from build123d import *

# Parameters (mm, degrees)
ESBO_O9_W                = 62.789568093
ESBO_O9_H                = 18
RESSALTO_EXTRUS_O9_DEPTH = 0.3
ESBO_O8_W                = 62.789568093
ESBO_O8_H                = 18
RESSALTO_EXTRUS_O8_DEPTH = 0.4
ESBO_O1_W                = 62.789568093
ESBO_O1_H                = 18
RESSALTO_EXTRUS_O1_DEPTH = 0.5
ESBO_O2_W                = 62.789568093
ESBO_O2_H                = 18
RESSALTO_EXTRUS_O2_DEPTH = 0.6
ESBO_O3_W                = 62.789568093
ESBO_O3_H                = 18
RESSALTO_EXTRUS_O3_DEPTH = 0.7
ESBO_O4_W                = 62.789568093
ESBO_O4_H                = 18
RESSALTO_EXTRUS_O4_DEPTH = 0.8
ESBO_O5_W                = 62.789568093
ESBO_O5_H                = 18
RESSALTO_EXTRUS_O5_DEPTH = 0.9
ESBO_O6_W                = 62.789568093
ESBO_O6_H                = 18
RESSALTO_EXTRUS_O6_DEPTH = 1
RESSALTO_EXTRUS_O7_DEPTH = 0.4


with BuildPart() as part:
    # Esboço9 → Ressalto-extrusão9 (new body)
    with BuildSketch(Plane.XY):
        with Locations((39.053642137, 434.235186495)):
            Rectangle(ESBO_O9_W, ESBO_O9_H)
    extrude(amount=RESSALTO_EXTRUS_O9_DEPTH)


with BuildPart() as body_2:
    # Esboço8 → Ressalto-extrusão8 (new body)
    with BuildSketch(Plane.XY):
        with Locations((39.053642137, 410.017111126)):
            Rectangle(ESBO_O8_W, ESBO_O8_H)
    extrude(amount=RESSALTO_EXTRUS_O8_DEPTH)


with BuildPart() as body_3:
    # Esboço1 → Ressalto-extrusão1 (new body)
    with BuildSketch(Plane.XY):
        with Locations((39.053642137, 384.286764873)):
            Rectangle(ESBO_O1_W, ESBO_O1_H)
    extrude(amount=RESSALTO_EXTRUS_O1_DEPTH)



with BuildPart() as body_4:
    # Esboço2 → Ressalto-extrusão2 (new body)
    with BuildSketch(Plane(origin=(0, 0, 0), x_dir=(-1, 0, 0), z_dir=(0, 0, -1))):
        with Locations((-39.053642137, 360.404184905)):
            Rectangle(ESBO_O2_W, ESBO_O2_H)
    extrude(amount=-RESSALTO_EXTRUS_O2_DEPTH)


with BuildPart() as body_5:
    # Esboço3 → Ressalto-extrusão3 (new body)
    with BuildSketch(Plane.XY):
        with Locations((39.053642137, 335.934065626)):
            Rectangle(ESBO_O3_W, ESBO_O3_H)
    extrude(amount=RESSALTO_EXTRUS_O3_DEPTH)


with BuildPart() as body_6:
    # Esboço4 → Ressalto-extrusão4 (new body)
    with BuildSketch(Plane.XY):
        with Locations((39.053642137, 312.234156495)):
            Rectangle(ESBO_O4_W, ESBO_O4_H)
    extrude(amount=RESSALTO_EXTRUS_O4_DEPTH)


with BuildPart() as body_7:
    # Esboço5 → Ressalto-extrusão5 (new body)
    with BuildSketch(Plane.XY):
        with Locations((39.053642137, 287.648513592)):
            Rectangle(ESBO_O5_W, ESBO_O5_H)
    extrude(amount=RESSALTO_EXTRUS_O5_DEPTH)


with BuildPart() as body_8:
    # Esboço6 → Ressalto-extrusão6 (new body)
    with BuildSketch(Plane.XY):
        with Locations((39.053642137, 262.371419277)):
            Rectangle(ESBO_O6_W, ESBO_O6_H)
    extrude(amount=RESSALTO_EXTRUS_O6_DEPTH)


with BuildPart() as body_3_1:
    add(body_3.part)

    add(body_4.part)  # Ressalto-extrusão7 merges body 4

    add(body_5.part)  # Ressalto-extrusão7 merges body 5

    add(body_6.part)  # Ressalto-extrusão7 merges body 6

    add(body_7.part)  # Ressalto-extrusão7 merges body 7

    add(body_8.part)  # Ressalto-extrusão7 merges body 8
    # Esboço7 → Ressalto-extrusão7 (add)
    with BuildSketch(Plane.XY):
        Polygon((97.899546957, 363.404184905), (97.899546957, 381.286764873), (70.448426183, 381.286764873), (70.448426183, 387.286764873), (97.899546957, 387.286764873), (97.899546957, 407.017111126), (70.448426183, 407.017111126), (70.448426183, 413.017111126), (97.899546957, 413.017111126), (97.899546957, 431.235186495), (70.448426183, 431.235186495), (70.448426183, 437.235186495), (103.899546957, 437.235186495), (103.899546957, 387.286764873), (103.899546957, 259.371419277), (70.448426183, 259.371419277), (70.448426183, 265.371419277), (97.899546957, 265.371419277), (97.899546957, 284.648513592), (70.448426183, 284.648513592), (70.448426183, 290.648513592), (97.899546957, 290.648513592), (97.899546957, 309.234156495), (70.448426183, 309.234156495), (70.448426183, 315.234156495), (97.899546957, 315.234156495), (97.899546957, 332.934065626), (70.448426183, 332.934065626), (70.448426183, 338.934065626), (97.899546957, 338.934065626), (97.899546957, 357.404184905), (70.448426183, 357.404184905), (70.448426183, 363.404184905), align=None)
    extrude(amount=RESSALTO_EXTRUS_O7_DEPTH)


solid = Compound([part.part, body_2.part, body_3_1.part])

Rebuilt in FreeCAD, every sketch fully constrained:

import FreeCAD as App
import Part
import Sketcher

V = App.Vector


def add_polygon(sketch, points):
    """Adds a closed chain of lines whose ends are joined by coincident constraints."""
    first, n = sketch.GeometryCount, len(points)
    for a, b in zip(points, points[1:] + points[:1]):
        sketch.addGeometry(Part.LineSegment(App.Vector(*a, 0), App.Vector(*b, 0)), False)
    for i in range(n):
        sketch.addConstraint(Sketcher.Constraint("Coincident", first + i, 2, first + (i + 1) % n, 1))

doc = App.newDocument("Part")
body = doc.addObject("PartDesign::Body", "Body")

# Sketch on XY plane
sketch1 = body.newObject("Sketcher::SketchObject", "Sketch")
sketch1.AttachmentSupport = (doc.getObject("XY_Plane"), [""])
sketch1.MapMode = "FlatFace"
add_polygon(sketch1, [(7.658858, 443.235186), (7.658858, 425.235186), (70.448426, 425.235186), (70.448426, 443.235186)])  # lines 0-3
sketch1.addConstraint([
    Sketcher.Constraint("Vertical", 0),
    Sketcher.Constraint("Horizontal", 1),
    Sketcher.Constraint("Vertical", 2),
    Sketcher.Constraint("Horizontal", 3),
    Sketcher.Constraint("DistanceY", 0, 2, 0, 1, 18.0),
    Sketcher.Constraint("DistanceX", 1, 1, 1, 2, 62.789568),
    Sketcher.Constraint("DistanceX", -1, 1, 0, 2, 7.658858),
    Sketcher.Constraint("DistanceY", -1, 1, 0, 2, 425.235186),
])
pad1 = body.newObject("PartDesign::Pad", "Pad")
pad1.Profile = sketch1
pad1.Length = 0.3
body2 = doc.addObject("PartDesign::Body", "Body001")

# Sketch on XY plane
sketch2 = body2.newObject("Sketcher::SketchObject", "Sketch001")
sketch2.AttachmentSupport = (doc.getObject("XY_Plane001"), [""])
sketch2.MapMode = "FlatFace"
add_polygon(sketch2, [(7.658858, 419.017111), (7.658858, 401.017111), (70.448426, 401.017111), (70.448426, 419.017111)])  # lines 0-3
sketch2.addConstraint([
    Sketcher.Constraint("Vertical", 0),
    Sketcher.Constraint("Horizontal", 1),
    Sketcher.Constraint("Vertical", 2),
    Sketcher.Constraint("Horizontal", 3),
    Sketcher.Constraint("DistanceY", 0, 2, 0, 1, 18.0),
    Sketcher.Constraint("DistanceX", 1, 1, 1, 2, 62.789568),
    Sketcher.Constraint("DistanceX", -1, 1, 0, 2, 7.658858),
    Sketcher.Constraint("DistanceY", -1, 1, 0, 2, 401.017111),
])
pad2 = body2.newObject("PartDesign::Pad", "Pad001")
pad2.Profile = sketch2
pad2.Length = 0.4
body3 = doc.addObject("PartDesign::Body", "Body002")

# Sketch on XY plane
sketch3 = body3.newObject("Sketcher::SketchObject", "Sketch002")
sketch3.AttachmentSupport = (doc.getObject("XY_Plane002"), [""])
sketch3.MapMode = "FlatFace"
add_polygon(sketch3, [(7.658858, 393.286765), (7.658858, 375.286765), (70.448426, 375.286765), (70.448426, 393.286765)])  # lines 0-3
sketch3.addConstraint([
    Sketcher.Constraint("Vertical", 0),
    Sketcher.Constraint("Horizontal", 1),
    Sketcher.Constraint("Vertical", 2),
    Sketcher.Constraint("Horizontal", 3),
    Sketcher.Constraint("DistanceY", 0, 2, 0, 1, 18.0),
    Sketcher.Constraint("DistanceX", 1, 1, 1, 2, 62.789568),
    Sketcher.Constraint("DistanceX", -1, 1, 0, 2, 7.658858),
    Sketcher.Constraint("DistanceY", -1, 1, 0, 2, 375.286765),
])
pad3 = body3.newObject("PartDesign::Pad", "Pad002")
pad3.Profile = sketch3
pad3.Length = 0.5
body4 = doc.addObject("PartDesign::Body", "Body003")

# Sketch on XY plane
sketch4 = body4.newObject("Sketcher::SketchObject", "Sketch003")
sketch4.AttachmentSupport = (doc.getObject("XY_Plane003"), [""])
sketch4.MapMode = "FlatFace"
add_polygon(sketch4, [(70.448426, 369.404185), (70.448426, 351.404185), (7.658858, 351.404185), (7.658858, 369.404185)])  # lines 0-3
sketch4.addConstraint([
    Sketcher.Constraint("Vertical", 0),
    Sketcher.Constraint("Horizontal", 1),
    Sketcher.Constraint("Vertical", 2),
    Sketcher.Constraint("Horizontal", 3),
    Sketcher.Constraint("DistanceY", 0, 2, 0, 1, 18.0),
    Sketcher.Constraint("DistanceX", 1, 2, 1, 1, 62.789568),
    Sketcher.Constraint("DistanceX", -1, 1, 1, 2, 7.658858),
    Sketcher.Constraint("DistanceY", -1, 1, 0, 2, 351.404185),
])
pad4 = body4.newObject("PartDesign::Pad", "Pad003")
pad4.Profile = sketch4
pad4.Length = 0.6
body5 = doc.addObject("PartDesign::Body", "Body004")

# Sketch on XY plane
sketch5 = body5.newObject("Sketcher::SketchObject", "Sketch004")
sketch5.AttachmentSupport = (doc.getObject("XY_Plane004"), [""])
sketch5.MapMode = "FlatFace"
add_polygon(sketch5, [(7.658858, 344.934066), (7.658858, 326.934066), (70.448426, 326.934066), (70.448426, 344.934066)])  # lines 0-3
sketch5.addConstraint([
    Sketcher.Constraint("Vertical", 0),
    Sketcher.Constraint("Horizontal", 1),
    Sketcher.Constraint("Vertical", 2),
    Sketcher.Constraint("Horizontal", 3),
    Sketcher.Constraint("DistanceY", 0, 2, 0, 1, 18.0),
    Sketcher.Constraint("DistanceX", 1, 1, 1, 2, 62.789568),
    Sketcher.Constraint("DistanceX", -1, 1, 0, 2, 7.658858),
    Sketcher.Constraint("DistanceY", -1, 1, 0, 2, 326.934066),
])
pad5 = body5.newObject("PartDesign::Pad", "Pad004")
pad5.Profile = sketch5
pad5.Length = 0.7
body6 = doc.addObject("PartDesign::Body", "Body005")

# Sketch on XY plane
sketch6 = body6.newObject("Sketcher::SketchObject", "Sketch005")
sketch6.AttachmentSupport = (doc.getObject("XY_Plane005"), [""])
sketch6.MapMode = "FlatFace"
add_polygon(sketch6, [(7.658858, 321.234156), (7.658858, 303.234156), (70.448426, 303.234156), (70.448426, 321.234156)])  # lines 0-3
sketch6.addConstraint([
    Sketcher.Constraint("Vertical", 0),
    Sketcher.Constraint("Horizontal", 1),
    Sketcher.Constraint("Vertical", 2),
    Sketcher.Constraint("Horizontal", 3),
    Sketcher.Constraint("DistanceY", 0, 2, 0, 1, 18.0),
    Sketcher.Constraint("DistanceX", 1, 1, 1, 2, 62.789568),
    Sketcher.Constraint("DistanceX", -1, 1, 0, 2, 7.658858),
    Sketcher.Constraint("DistanceY", -1, 1, 0, 2, 303.234156),
])
pad6 = body6.newObject("PartDesign::Pad", "Pad005")
pad6.Profile = sketch6
pad6.Length = 0.8
body7 = doc.addObject("PartDesign::Body", "Body006")

# Sketch on XY plane
sketch7 = body7.newObject("Sketcher::SketchObject", "Sketch006")
sketch7.AttachmentSupport = (doc.getObject("XY_Plane006"), [""])
sketch7.MapMode = "FlatFace"
add_polygon(sketch7, [(7.658858, 296.648514), (7.658858, 278.648514), (70.448426, 278.648514), (70.448426, 296.648514)])  # lines 0-3
sketch7.addConstraint([
    Sketcher.Constraint("Vertical", 0),
    Sketcher.Constraint("Horizontal", 1),
    Sketcher.Constraint("Vertical", 2),
    Sketcher.Constraint("Horizontal", 3),
    Sketcher.Constraint("DistanceY", 0, 2, 0, 1, 18.0),
    Sketcher.Constraint("DistanceX", 1, 1, 1, 2, 62.789568),
    Sketcher.Constraint("DistanceX", -1, 1, 0, 2, 7.658858),
    Sketcher.Constraint("DistanceY", -1, 1, 0, 2, 278.648514),
])
pad7 = body7.newObject("PartDesign::Pad", "Pad006")
pad7.Profile = sketch7
pad7.Length = 0.9
body8 = doc.addObject("PartDesign::Body", "Body007")

# Sketch on XY plane
sketch8 = body8.newObject("Sketcher::SketchObject", "Sketch007")
sketch8.AttachmentSupport = (doc.getObject("XY_Plane007"), [""])
sketch8.MapMode = "FlatFace"
add_polygon(sketch8, [(7.658858, 271.371419), (7.658858, 253.371419), (70.448426, 253.371419), (70.448426, 271.371419)])  # lines 0-3
sketch8.addConstraint([
    Sketcher.Constraint("Vertical", 0),
    Sketcher.Constraint("Horizontal", 1),
    Sketcher.Constraint("Vertical", 2),
    Sketcher.Constraint("Horizontal", 3),
    Sketcher.Constraint("DistanceY", 0, 2, 0, 1, 18.0),
    Sketcher.Constraint("DistanceX", 1, 1, 1, 2, 62.789568),
    Sketcher.Constraint("DistanceX", -1, 1, 0, 2, 7.658858),
    Sketcher.Constraint("DistanceY", -1, 1, 0, 2, 253.371419),
])
pad8 = body8.newObject("PartDesign::Pad", "Pad007")
pad8.Profile = sketch8
pad8.Length = 1
body3.AllowCompound = True
doc.recompute()

boolean = body3.newObject("PartDesign::Boolean", "Boolean")
boolean.Type = "Fuse"
boolean.addObjects([body4])
doc.recompute()

boolean2 = body3.newObject("PartDesign::Boolean", "Boolean001")
boolean2.Type = "Fuse"
boolean2.addObjects([body5])
doc.recompute()

boolean3 = body3.newObject("PartDesign::Boolean", "Boolean002")
boolean3.Type = "Fuse"
boolean3.addObjects([body6])
doc.recompute()

boolean4 = body3.newObject("PartDesign::Boolean", "Boolean003")
boolean4.Type = "Fuse"
boolean4.addObjects([body7])
doc.recompute()

boolean5 = body3.newObject("PartDesign::Boolean", "Boolean004")
boolean5.Type = "Fuse"
boolean5.addObjects([body8])

# Sketch on XY plane
sketch9 = body3.newObject("Sketcher::SketchObject", "Sketch008")
sketch9.AttachmentSupport = (doc.getObject("XY_Plane002"), [""])
sketch9.MapMode = "FlatFace"
add_polygon(sketch9, [(97.899547, 381.286765), (97.899547, 363.404185), (70.448426, 363.404185), (70.448426, 357.404185), (97.899547, 357.404185), (97.899547, 338.934066), (70.448426, 338.934066), (70.448426, 332.934066), (97.899547, 332.934066), (97.899547, 315.234156), (70.448426, 315.234156), (70.448426, 309.234156), (97.899547, 309.234156), (97.899547, 290.648514), (70.448426, 290.648514), (70.448426, 284.648514), (97.899547, 284.648514), (97.899547, 265.371419), (70.448426, 265.371419), (70.448426, 259.371419), (103.899547, 259.371419), (103.899547, 437.235186), (70.448426, 437.235186), (70.448426, 431.235186), (97.899547, 431.235186), (97.899547, 413.017111), (70.448426, 413.017111), (70.448426, 407.017111), (97.899547, 407.017111), (97.899547, 387.286765), (70.448426, 387.286765), (70.448426, 381.286765)])  # lines 0-31
sketch9.addConstraint([
    Sketcher.Constraint("Vertical", 0),
    Sketcher.Constraint("Horizontal", 1),
    Sketcher.Constraint("Vertical", 2),
    Sketcher.Constraint("Horizontal", 3),
    Sketcher.Constraint("Vertical", 4),
    Sketcher.Constraint("Horizontal", 5),
    Sketcher.Constraint("Vertical", 6),
    Sketcher.Constraint("Horizontal", 7),
    Sketcher.Constraint("Vertical", 8),
    Sketcher.Constraint("Horizontal", 9),
    Sketcher.Constraint("Vertical", 10),
    Sketcher.Constraint("Horizontal", 11),
    Sketcher.Constraint("Vertical", 12),
    Sketcher.Constraint("Horizontal", 13),
    Sketcher.Constraint("Vertical", 14),
    Sketcher.Constraint("Horizontal", 15),
    Sketcher.Constraint("Vertical", 16),
    Sketcher.Constraint("Horizontal", 17),
    Sketcher.Constraint("Vertical", 18),
    Sketcher.Constraint("Horizontal", 19),
    Sketcher.Constraint("Vertical", 20),
    Sketcher.Constraint("Horizontal", 21),
    Sketcher.Constraint("Vertical", 22),
    Sketcher.Constraint("Horizontal", 23),
    Sketcher.Constraint("Vertical", 24),
    Sketcher.Constraint("Horizontal", 25),
    Sketcher.Constraint("Vertical", 26),
    Sketcher.Constraint("Horizontal", 27),
    Sketcher.Constraint("Vertical", 28),
    Sketcher.Constraint("Horizontal", 29),
    Sketcher.Constraint("Vertical", 30),
    Sketcher.Constraint("Horizontal", 31),
    Sketcher.Constraint("Vertical", 0, 2, 3, 2),
    Sketcher.Constraint("Vertical", 2, 2, 5, 2),
    Sketcher.Constraint("Vertical", 4, 2, 7, 2),
    Sketcher.Constraint("Vertical", 6, 2, 9, 2),
    Sketcher.Constraint("Vertical", 8, 2, 11, 2),
    Sketcher.Constraint("Vertical", 10, 2, 13, 2),
    Sketcher.Constraint("Vertical", 12, 2, 15, 2),
    Sketcher.Constraint("Vertical", 14, 2, 17, 2),
    Sketcher.Constraint("Vertical", 18, 2, 21, 2),
    Sketcher.Constraint("Vertical", 16, 2, 23, 2),
    Sketcher.Constraint("Vertical", 22, 2, 25, 2),
    Sketcher.Constraint("Vertical", 24, 2, 27, 2),
    Sketcher.Constraint("Vertical", 26, 2, 29, 2),
    Sketcher.Constraint("Equal", 2, 6),
    Sketcher.Constraint("Equal", 6, 10),
    Sketcher.Constraint("Equal", 10, 14),
    Sketcher.Constraint("Equal", 14, 18),
    Sketcher.Constraint("Equal", 18, 22),
    Sketcher.Constraint("Equal", 22, 26),
    Sketcher.Constraint("Equal", 26, 30),
    Sketcher.Constraint("DistanceY", 2, 2, 2, 1, 6.0),
    Sketcher.Constraint("DistanceX", 16, 2, 19, 2, 6.0),
    Sketcher.Constraint("DistanceY", 0, 2, 20, 2, 73.831002),
    Sketcher.Constraint("DistanceX", 1, 2, 1, 1, 27.451121),
    Sketcher.Constraint("DistanceY", 0, 2, 0, 1, 17.88258),
    Sketcher.Constraint("DistanceY", 4, 2, 4, 1, 18.470119),
    Sketcher.Constraint("DistanceY", 8, 2, 8, 1, 17.699909),
    Sketcher.Constraint("DistanceY", 12, 2, 12, 1, 18.585643),
    Sketcher.Constraint("DistanceY", 16, 2, 16, 1, 19.277094),
    Sketcher.Constraint("DistanceY", 24, 2, 24, 1, 18.218075),
    Sketcher.Constraint("DistanceY", -1, 1, 16, 2, 265.371419),
    Sketcher.Constraint("DistanceX", -1, 1, 0, 2, 97.899547),
])
pad9 = body3.newObject("PartDesign::Pad", "Pad008")
pad9.Profile = sketch9
pad9.Length = 0.4

doc.recompute()
